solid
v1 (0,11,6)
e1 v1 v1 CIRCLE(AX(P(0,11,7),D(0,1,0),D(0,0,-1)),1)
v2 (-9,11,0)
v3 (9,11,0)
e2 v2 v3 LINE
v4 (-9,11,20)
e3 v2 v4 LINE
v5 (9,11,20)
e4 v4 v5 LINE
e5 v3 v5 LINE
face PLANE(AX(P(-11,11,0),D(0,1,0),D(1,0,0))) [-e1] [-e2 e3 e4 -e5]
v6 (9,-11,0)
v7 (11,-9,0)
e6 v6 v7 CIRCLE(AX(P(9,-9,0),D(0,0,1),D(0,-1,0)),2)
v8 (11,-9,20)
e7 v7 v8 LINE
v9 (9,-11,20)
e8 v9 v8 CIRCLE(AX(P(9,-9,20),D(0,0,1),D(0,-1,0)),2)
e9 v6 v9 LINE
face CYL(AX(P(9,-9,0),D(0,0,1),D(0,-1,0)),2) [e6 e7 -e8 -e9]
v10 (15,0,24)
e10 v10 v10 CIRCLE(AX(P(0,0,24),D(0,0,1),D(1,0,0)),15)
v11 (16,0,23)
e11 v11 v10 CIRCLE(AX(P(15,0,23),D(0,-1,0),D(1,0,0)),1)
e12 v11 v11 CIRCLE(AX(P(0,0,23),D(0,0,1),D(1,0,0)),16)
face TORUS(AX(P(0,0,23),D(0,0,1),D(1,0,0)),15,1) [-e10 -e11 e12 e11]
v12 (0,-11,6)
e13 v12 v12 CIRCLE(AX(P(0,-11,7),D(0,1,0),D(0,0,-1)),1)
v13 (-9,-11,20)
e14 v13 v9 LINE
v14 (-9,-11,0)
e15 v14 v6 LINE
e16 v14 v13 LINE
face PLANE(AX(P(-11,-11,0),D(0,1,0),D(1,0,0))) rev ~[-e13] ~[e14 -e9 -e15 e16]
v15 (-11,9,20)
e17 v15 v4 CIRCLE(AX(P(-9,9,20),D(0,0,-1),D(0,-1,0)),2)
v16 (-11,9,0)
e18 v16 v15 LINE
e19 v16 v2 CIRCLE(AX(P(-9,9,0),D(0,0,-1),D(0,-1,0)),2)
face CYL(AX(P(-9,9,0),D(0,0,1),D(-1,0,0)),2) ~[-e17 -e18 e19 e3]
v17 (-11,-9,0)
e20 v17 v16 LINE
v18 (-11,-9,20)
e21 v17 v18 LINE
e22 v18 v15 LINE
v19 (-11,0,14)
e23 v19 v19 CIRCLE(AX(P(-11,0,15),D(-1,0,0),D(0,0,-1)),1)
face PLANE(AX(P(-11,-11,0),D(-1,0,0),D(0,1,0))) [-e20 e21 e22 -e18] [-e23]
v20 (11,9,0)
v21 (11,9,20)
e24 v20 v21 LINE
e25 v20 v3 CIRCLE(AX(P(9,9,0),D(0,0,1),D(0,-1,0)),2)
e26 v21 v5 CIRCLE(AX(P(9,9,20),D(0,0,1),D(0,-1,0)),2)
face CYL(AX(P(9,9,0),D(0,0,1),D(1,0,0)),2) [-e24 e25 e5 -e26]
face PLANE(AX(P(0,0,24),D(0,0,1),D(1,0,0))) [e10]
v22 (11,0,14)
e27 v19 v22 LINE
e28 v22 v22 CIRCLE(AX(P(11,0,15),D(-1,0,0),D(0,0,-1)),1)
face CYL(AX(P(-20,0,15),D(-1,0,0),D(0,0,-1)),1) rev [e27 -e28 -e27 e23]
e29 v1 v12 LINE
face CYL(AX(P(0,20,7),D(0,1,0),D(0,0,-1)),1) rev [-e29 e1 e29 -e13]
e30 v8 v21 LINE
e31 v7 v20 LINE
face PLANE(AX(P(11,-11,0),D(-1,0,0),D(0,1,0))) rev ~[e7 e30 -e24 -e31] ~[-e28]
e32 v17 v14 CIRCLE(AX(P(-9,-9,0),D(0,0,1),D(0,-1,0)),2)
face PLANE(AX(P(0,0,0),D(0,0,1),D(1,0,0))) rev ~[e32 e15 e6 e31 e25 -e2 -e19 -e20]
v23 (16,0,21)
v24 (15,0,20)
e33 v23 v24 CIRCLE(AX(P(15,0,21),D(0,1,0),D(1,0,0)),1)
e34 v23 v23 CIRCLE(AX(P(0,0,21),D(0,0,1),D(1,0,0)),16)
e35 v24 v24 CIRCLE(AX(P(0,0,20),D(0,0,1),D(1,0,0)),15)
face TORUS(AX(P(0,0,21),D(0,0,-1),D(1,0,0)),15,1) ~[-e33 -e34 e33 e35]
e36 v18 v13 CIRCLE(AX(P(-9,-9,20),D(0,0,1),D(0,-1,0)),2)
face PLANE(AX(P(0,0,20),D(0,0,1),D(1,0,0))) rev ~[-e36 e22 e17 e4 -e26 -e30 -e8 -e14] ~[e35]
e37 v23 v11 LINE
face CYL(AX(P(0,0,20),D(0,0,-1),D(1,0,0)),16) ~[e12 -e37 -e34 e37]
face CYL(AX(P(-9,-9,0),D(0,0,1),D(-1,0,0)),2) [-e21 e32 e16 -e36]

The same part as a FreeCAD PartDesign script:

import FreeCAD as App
import Part
import Sketcher
from FreeCAD import Vector


def edges_at(feature, points):
    """Names of the edges that pass closest to the given points."""
    edges = feature.Shape.Edges
    near = lambda p: min(range(len(edges)), key=lambda i: edges[i].distToShape(Part.Vertex(*p))[0])
    return sorted({f"Edge{near(p) + 1}" for p in points})

doc = App.newDocument("Part")
params = doc.addObject("Spreadsheet::Sheet", "Params")
for row, (alias, value) in enumerate([
    ("sketch1_diameter", "2 mm"),
    ("pad1_length", "40 mm"),
    ("sketch2_diameter", "2 mm"),
    ("pad2_length", "40 mm"),
    ("sketch3_width", "22 mm"),
    ("pad3_length", "20 mm"),
    ("fillet_radius", "2 mm"),
    ("sketch4_diameter", "32 mm"),
    ("pad4_length", "4 mm"),
    ("fillet2_radius", "1 mm"),
], start=1):
    params.set(f"A{row}", alias)
    params.set(f"B{row}", "=" + value)
    params.setAlias(f"B{row}", alias)

body = doc.addObject("PartDesign::Body", "Body")

sketch1 = body.newObject("Sketcher::SketchObject", "Sketch")
sketch1.AttachmentSupport = (doc.getObject("XZ_Plane"), [""])
sketch1.MapMode = "FlatFace"
sketch1.AttachmentOffset = App.Placement(Vector(0, 0, -20), App.Rotation())
sketch1.addGeometry(Part.Circle(Vector(0, 7, 0), Vector(0, 0, 1), 1), False)
sketch1.addConstraint([
    Sketcher.Constraint("PointOnObject", 0, 3, -2),
    Sketcher.Constraint("Diameter", 0, 2.0),
    Sketcher.Constraint("DistanceY", -1, 1, 0, 3, 7.0),
])
sketch1.setExpression("Constraints[1]", "Params.sketch1_diameter")
pad1 = body.newObject("PartDesign::Pad", "Pad")
pad1.Profile = sketch1
pad1.setExpression("Length", "Params.pad1_length")
body2 = doc.addObject("PartDesign::Body", "Body001")
body2.AllowCompound = True

sketch2 = body2.newObject("Sketcher::SketchObject", "Sketch001")
sketch2.AttachmentSupport = (doc.getObject("YZ_Plane001"), [""])
sketch2.MapMode = "FlatFace"
sketch2.AttachmentOffset = App.Placement(Vector(0, 0, -20), App.Rotation())
sketch2.addGeometry(Part.Circle(Vector(0, 15, 0), Vector(0, 0, 1), 1), False)
sketch2.addConstraint([
    Sketcher.Constraint("PointOnObject", 0, 3, -2),
    Sketcher.Constraint("Diameter", 0, 2.0),
    Sketcher.Constraint("DistanceY", -1, 1, 0, 3, 15.0),
])
sketch2.setExpression("Constraints[1]", "Params.sketch2_diameter")
pad2 = body2.newObject("PartDesign::Pad", "Pad001")
pad2.Profile = sketch2
pad2.setExpression("Length", "Params.pad2_length")
doc.recompute()

boolean = body2.newObject("PartDesign::Boolean", "Boolean")
boolean.Type = "Fuse"
boolean.addObjects([body])
body3 = doc.addObject("PartDesign::Body", "Body002")

sketch3 = body3.newObject("Sketcher::SketchObject", "Sketch002")
sketch3.AttachmentSupport = (doc.getObject("XY_Plane002"), [""])
sketch3.MapMode = "FlatFace"
sketch3.addGeometry([
    Part.LineSegment(Vector(-11, 11, 0), Vector(-11, -11, 0)),
    Part.LineSegment(Vector(-11, -11, 0), Vector(11, -11, 0)),
    Part.LineSegment(Vector(11, -11, 0), Vector(11, 11, 0)),
    Part.LineSegment(Vector(11, 11, 0), Vector(-11, 11, 0)),
], False)
sketch3.addConstraint([
    Sketcher.Constraint("Coincident", 0, 2, 1, 1),
    Sketcher.Constraint("Coincident", 1, 2, 2, 1),
    Sketcher.Constraint("Coincident", 2, 2, 3, 1),
    Sketcher.Constraint("Coincident", 3, 2, 0, 1),
    Sketcher.Constraint("Vertical", 0),
    Sketcher.Constraint("Horizontal", 1),
    Sketcher.Constraint("Vertical", 2),
    Sketcher.Constraint("Horizontal", 3),
    Sketcher.Constraint("Symmetric", 0, 2, 2, 2, -1, 1),
    Sketcher.Constraint("Equal", 3, 0),
    Sketcher.Constraint("DistanceX", 1, 1, 1, 2, 22.0),
])
sketch3.setExpression("Constraints[10]", "Params.sketch3_width")
pad3 = body3.newObject("PartDesign::Pad", "Pad002")
pad3.Profile = sketch3
pad3.setExpression("Length", "Params.pad3_length")
doc.recompute()

fillet = body3.newObject("PartDesign::Fillet", "Fillet")
fillet.Base = (pad3, edges_at(pad3, [
    (-11, -11, 10),
    (-11, 11, 10),
    (11, -11, 10),
    (11, 11, 10),
]))
fillet.setExpression("Radius", "Params.fillet_radius")
body4 = doc.addObject("PartDesign::Body", "Body003")

sketch4 = body4.newObject("Sketcher::SketchObject", "Sketch003")
sketch4.AttachmentSupport = (doc.getObject("XY_Plane003"), [""])
sketch4.MapMode = "FlatFace"
sketch4.AttachmentOffset = App.Placement(Vector(0, 0, 20), App.Rotation())
sketch4.addGeometry(Part.Circle(Vector(0, 0, 0), Vector(0, 0, 1), 16), False)
sketch4.addConstraint([
    Sketcher.Constraint("Coincident", 0, 3, -1, 1),
    Sketcher.Constraint("Diameter", 0, 32.0),
])
sketch4.setExpression("Constraints[1]", "Params.sketch4_diameter")
pad4 = body4.newObject("PartDesign::Pad", "Pad003")
pad4.Profile = sketch4
pad4.setExpression("Length", "Params.pad4_length")
doc.recompute()

fillet2 = body4.newObject("PartDesign::Fillet", "Fillet001")
fillet2.Base = (pad4, edges_at(pad4, [(-16, 0, 24), (-16, 0, 20)]))
fillet2.setExpression("Radius", "Params.fillet2_radius")
doc.recompute()

boolean2 = body4.newObject("PartDesign::Boolean", "Boolean001")
boolean2.Type = "Fuse"
boolean2.addObjects([body3])
doc.recompute()

boolean3 = body4.newObject("PartDesign::Boolean", "Boolean002")
boolean3.Type = "Cut"
boolean3.addObjects([body2])

doc.recompute()
